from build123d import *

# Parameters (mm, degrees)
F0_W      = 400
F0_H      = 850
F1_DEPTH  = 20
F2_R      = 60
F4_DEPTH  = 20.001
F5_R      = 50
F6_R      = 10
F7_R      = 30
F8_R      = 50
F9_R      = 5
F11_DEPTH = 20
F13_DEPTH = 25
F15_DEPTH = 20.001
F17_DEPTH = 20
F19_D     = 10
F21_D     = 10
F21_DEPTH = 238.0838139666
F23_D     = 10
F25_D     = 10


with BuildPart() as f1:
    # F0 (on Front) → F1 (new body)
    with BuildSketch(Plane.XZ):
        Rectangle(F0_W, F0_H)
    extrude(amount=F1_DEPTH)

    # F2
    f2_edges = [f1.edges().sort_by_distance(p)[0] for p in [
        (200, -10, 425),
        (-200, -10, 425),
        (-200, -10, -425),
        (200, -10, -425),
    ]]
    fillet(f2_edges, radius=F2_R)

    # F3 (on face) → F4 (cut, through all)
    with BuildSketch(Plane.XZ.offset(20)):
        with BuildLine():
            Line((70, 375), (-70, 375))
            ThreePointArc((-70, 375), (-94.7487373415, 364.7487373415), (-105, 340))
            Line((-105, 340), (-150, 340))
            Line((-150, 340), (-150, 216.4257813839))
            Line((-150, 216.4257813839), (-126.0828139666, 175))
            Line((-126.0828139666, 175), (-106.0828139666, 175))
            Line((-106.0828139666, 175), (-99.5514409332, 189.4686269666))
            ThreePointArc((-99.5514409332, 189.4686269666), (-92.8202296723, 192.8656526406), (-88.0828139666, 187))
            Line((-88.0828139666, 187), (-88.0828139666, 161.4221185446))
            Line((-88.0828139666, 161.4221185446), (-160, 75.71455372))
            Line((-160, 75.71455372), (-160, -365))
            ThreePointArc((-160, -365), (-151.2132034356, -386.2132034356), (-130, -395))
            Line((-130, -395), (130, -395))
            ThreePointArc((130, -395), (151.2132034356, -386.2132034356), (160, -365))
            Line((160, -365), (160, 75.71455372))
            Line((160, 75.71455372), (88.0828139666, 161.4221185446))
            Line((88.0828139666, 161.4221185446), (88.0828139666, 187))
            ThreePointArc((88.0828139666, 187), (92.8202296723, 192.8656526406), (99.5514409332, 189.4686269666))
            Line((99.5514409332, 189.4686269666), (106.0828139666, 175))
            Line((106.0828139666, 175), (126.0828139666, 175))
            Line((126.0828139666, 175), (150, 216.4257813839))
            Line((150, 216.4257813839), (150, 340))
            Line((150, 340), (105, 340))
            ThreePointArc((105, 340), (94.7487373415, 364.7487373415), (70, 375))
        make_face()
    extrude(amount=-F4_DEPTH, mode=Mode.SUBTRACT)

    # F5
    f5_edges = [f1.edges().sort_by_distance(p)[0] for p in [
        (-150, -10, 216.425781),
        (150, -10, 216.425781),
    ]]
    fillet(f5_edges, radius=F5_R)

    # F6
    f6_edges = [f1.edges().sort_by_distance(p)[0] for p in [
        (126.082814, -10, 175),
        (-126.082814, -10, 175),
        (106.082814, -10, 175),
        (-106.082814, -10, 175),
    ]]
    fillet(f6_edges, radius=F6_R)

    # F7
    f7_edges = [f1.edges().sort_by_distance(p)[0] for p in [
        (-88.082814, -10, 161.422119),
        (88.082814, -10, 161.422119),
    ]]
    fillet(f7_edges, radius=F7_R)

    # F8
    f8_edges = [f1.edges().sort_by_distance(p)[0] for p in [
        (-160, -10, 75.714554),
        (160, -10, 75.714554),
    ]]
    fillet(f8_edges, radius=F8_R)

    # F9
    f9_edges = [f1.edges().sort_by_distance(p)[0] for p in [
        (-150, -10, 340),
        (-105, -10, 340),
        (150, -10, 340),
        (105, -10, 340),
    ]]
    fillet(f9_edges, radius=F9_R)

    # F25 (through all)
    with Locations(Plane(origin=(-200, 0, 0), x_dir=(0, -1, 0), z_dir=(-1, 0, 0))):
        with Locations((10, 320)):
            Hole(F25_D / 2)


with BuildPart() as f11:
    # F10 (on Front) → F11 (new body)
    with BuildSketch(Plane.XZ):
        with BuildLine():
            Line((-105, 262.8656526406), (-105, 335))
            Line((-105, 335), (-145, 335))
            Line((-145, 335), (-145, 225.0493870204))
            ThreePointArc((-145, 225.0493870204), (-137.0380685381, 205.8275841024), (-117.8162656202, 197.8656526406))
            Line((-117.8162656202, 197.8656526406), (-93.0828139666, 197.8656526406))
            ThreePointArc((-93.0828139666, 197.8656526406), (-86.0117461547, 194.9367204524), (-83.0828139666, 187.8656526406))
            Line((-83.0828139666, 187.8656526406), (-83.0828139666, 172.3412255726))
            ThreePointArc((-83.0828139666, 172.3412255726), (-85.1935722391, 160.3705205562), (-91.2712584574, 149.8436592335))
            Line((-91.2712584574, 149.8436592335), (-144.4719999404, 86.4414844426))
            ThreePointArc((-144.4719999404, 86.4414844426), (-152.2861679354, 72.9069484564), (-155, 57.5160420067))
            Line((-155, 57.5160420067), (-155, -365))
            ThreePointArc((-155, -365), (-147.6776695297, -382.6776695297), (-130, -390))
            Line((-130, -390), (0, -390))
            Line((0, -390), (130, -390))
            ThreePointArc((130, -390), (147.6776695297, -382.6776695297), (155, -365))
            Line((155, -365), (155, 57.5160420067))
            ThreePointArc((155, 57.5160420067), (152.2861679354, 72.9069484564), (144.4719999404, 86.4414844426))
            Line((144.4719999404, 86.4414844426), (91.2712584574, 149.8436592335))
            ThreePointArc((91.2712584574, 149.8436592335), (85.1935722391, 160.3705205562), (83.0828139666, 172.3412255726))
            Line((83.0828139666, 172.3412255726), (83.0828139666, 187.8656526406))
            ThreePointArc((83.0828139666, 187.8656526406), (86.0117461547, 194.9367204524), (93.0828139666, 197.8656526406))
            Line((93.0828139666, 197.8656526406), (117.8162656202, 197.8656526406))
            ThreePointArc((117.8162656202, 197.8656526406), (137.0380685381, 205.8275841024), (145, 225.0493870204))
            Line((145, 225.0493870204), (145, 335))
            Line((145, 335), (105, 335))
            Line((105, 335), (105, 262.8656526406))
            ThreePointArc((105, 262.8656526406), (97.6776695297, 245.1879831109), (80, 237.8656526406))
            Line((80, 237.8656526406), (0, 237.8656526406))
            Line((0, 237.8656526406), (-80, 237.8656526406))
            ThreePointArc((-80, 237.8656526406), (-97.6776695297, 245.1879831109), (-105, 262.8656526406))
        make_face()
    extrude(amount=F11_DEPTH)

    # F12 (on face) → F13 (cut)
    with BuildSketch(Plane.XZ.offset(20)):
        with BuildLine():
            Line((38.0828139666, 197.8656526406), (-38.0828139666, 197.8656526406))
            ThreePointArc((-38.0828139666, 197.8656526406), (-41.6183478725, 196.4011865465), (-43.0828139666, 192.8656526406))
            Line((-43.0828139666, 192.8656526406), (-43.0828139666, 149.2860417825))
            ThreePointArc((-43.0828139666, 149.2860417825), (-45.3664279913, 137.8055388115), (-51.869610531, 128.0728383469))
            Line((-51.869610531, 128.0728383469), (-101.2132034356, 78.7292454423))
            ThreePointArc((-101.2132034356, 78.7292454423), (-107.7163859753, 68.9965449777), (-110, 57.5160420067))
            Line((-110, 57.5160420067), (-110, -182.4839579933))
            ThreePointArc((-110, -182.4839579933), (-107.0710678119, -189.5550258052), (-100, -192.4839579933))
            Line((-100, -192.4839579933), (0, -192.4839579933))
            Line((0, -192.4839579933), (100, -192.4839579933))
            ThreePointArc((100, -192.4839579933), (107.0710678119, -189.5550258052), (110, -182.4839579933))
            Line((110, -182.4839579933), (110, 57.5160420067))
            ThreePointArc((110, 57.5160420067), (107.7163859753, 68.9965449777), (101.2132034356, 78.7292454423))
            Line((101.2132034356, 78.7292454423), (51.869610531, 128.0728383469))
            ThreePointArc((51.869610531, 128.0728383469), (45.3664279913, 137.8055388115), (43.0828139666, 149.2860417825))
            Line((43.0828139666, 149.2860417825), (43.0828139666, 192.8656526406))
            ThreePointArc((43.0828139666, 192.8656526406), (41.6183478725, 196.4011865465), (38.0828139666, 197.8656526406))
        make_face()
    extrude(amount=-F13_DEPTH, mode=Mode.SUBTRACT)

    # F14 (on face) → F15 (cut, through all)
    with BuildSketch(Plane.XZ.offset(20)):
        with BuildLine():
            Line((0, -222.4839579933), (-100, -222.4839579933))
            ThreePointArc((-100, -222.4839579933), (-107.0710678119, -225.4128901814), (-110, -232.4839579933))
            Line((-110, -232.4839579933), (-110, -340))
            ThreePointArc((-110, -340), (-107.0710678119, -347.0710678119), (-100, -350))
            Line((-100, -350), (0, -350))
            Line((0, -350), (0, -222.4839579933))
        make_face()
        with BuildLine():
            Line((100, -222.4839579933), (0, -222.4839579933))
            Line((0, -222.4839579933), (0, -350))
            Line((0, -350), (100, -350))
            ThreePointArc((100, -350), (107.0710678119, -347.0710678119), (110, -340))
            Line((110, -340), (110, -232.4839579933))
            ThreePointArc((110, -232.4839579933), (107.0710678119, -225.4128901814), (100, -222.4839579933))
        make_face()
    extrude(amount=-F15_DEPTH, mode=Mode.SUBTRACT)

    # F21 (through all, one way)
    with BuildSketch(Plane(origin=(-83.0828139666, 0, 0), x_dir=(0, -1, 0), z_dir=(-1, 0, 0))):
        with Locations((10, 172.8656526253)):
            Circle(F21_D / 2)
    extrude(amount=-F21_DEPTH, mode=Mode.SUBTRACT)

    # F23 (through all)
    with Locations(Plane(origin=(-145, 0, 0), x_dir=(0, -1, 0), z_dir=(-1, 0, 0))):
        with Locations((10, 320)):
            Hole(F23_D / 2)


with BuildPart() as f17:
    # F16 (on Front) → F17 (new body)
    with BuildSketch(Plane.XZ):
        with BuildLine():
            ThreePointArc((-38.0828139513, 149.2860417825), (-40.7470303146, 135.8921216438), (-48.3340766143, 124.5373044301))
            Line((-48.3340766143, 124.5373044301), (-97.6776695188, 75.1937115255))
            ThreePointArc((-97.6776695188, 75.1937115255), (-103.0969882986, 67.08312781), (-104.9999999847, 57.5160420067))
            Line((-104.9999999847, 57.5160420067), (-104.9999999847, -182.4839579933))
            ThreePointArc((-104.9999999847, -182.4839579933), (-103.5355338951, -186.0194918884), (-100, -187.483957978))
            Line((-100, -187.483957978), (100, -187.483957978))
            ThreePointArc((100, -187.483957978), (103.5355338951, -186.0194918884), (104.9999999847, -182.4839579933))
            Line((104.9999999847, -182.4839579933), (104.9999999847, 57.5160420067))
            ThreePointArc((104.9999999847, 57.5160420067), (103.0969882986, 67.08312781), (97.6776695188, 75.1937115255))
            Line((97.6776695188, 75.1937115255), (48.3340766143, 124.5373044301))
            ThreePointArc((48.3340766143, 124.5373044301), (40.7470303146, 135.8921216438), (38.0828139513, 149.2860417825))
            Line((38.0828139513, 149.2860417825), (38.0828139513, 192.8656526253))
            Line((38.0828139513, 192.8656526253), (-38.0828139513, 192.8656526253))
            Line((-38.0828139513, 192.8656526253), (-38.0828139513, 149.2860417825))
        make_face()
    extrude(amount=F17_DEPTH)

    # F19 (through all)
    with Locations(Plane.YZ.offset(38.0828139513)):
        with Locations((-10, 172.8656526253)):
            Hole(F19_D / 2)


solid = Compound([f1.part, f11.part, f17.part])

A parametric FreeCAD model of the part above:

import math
import FreeCAD as App
import Part
import Sketcher
Q = App.Units.Quantity


def edges_at(feature, points):
    """Names of the edges that pass closest to the given points."""
    edges = feature.Shape.Edges
    near = lambda p: min(range(len(edges)), key=lambda i: edges[i].distToShape(Part.Vertex(*p))[0])
    return sorted({f"Edge{near(p) + 1}" for p in points})


def add_polygon(sketch, points):
    """Adds a closed chain of lines whose ends are joined by coincident constraints."""
    first, n = sketch.GeometryCount, len(points)
    for a, b in zip(points, points[1:] + points[:1]):
        sketch.addGeometry(Part.LineSegment(App.Vector(*a, 0), App.Vector(*b, 0)), False)
    for i in range(n):
        sketch.addConstraint(Sketcher.Constraint("Coincident", first + i, 2, first + (i + 1) % n, 1))

doc = App.newDocument("Part")
body = doc.addObject("PartDesign::Body", "Body")

sketch1 = doc.addObject("Sketcher::SketchObject", "Sketch")
body.addObject(sketch1)
sketch1.AttachmentSupport = (doc.XZ_Plane, [""])
sketch1.MapMode = "FlatFace"
add_polygon(sketch1, [(-200, 425), (-200, -425), (200, -425), (200, 425)])
sketch1.addConstraint(Sketcher.Constraint("Vertical", 0))
sketch1.addConstraint(Sketcher.Constraint("Horizontal", 1))
sketch1.addConstraint(Sketcher.Constraint("Vertical", 2))
sketch1.addConstraint(Sketcher.Constraint("Horizontal", 3))
sketch1.addConstraint(Sketcher.Constraint("Symmetric", 0, 2, 2, 2, -1, 1))
sketch1.addConstraint(Sketcher.Constraint("DistanceX", 1, 1, 1, 2, Q("400 mm")))
sketch1.addConstraint(Sketcher.Constraint("DistanceY", 0, 2, 0, 1, Q("850 mm")))
pad1 = doc.addObject("PartDesign::Pad", "Pad")
body.addObject(pad1)
pad1.Profile = sketch1
pad1.Length = 20
doc.recompute()

fillet = doc.addObject("PartDesign::Fillet", "Fillet")
body.addObject(fillet)
fillet.Base = (pad1, edges_at(pad1, [
    (200, -10, 425),
    (-200, -10, 425),
    (-200, -10, -425),
    (200, -10, -425),
]))
fillet.Radius = 60

sketch2 = doc.addObject("Sketcher::SketchObject", "Sketch001")
body.addObject(sketch2)
sketch2.AttachmentSupport = (doc.XZ_Plane, [""])
sketch2.MapMode = "FlatFace"
sketch2.AttachmentOffset = App.Placement(App.Vector(0, 0, 20), App.Rotation())
sketch2.addGeometry(Part.LineSegment(App.Vector(70, 375, 0), App.Vector(-70, 375, 0)), False)
sketch2.addGeometry(Part.ArcOfCircle(Part.Circle(App.Vector(-70, 340, 0), App.Vector(0, 0, 1), 35), math.radians(90), math.radians(180)), False)
sketch2.addGeometry(Part.LineSegment(App.Vector(-105, 340, 0), App.Vector(-150, 340, 0)), False)
sketch2.addGeometry(Part.LineSegment(App.Vector(-150, 340, 0), App.Vector(-150, 216, 0)), False)
sketch2.addGeometry(Part.LineSegment(App.Vector(-150, 216, 0), App.Vector(-126, 175, 0)), False)
sketch2.addGeometry(Part.LineSegment(App.Vector(-126, 175, 0), App.Vector(-106, 175, 0)), False)
sketch2.addGeometry(Part.LineSegment(App.Vector(-106, 175, 0), App.Vector(-100, 189, 0)), False)
sketch2.addGeometry(Part.ArcOfCircle(Part.Circle(App.Vector(-94, 187, 0), App.Vector(0, 0, 1), 6), math.radians(0), math.radians(156)), False)
sketch2.addGeometry(Part.LineSegment(App.Vector(-88, 187, 0), App.Vector(-88, 161, 0)), False)
sketch2.addGeometry(Part.LineSegment(App.Vector(-88, 161, 0), App.Vector(-160, 76, 0)), False)
sketch2.addGeometry(Part.LineSegment(App.Vector(-160, 76, 0), App.Vector(-160, -365, 0)), False)
sketch2.addGeometry(Part.ArcOfCircle(Part.Circle(App.Vector(-130, -365, 0), App.Vector(0, 0, 1), 30), math.radians(180), math.radians(270)), False)
sketch2.addGeometry(Part.LineSegment(App.Vector(-130, -395, 0), App.Vector(130, -395, 0)), False)
sketch2.addGeometry(Part.ArcOfCircle(Part.Circle(App.Vector(130, -365, 0), App.Vector(0, 0, 1), 30), math.radians(-90), math.radians(0)), False)
sketch2.addGeometry(Part.LineSegment(App.Vector(160, -365, 0), App.Vector(160, 76, 0)), False)
sketch2.addGeometry(Part.LineSegment(App.Vector(160, 76, 0), App.Vector(88, 161, 0)), False)
sketch2.addGeometry(Part.LineSegment(App.Vector(88, 161, 0), App.Vector(88, 187, 0)), False)
sketch2.addGeometry(Part.ArcOfCircle(Part.Circle(App.Vector(94, 187, 0), App.Vector(0, 0, 1), 6), math.radians(24), math.radians(180)), False)
sketch2.addGeometry(Part.LineSegment(App.Vector(100, 189, 0), App.Vector(106, 175, 0)), False)
sketch2.addGeometry(Part.LineSegment(App.Vector(106, 175, 0), App.Vector(126, 175, 0)), False)
sketch2.addGeometry(Part.LineSegment(App.Vector(126, 175, 0), App.Vector(150, 216, 0)), False)
sketch2.addGeometry(Part.LineSegment(App.Vector(150, 216, 0), App.Vector(150, 340, 0)), False)
sketch2.addGeometry(Part.LineSegment(App.Vector(150, 340, 0), App.Vector(105, 340, 0)), False)
sketch2.addGeometry(Part.ArcOfCircle(Part.Circle(App.Vector(70, 340, 0), App.Vector(0, 0, 1), 35), math.radians(0), math.radians(90)), False)
sketch2.addConstraint(Sketcher.Constraint("Tangent", 0, 2, 1, 1))
sketch2.addConstraint(Sketcher.Constraint("Coincident", 1, 2, 2, 1))
sketch2.addConstraint(Sketcher.Constraint("Coincident", 2, 2, 3, 1))
sketch2.addConstraint(Sketcher.Constraint("Coincident", 3, 2, 4, 1))
sketch2.addConstraint(Sketcher.Constraint("Coincident", 4, 2, 5, 1))
sketch2.addConstraint(Sketcher.Constraint("Coincident", 5, 2, 6, 1))
sketch2.addConstraint(Sketcher.Constraint("Tangent", 6, 2, 7, 2))
sketch2.addConstraint(Sketcher.Constraint("Tangent", 7, 1, 8, 1))
sketch2.addConstraint(Sketcher.Constraint("Coincident", 8, 2, 9, 1))
sketch2.addConstraint(Sketcher.Constraint("Coincident", 9, 2, 10, 1))
sketch2.addConstraint(Sketcher.Constraint("Tangent", 10, 2, 11, 1))
sketch2.addConstraint(Sketcher.Constraint("Tangent", 11, 2, 12, 1))
sketch2.addConstraint(Sketcher.Constraint("Tangent", 12, 2, 13, 1))
sketch2.addConstraint(Sketcher.Constraint("Tangent", 13, 2, 14, 1))
sketch2.addConstraint(Sketcher.Constraint("Coincident", 14, 2, 15, 1))
sketch2.addConstraint(Sketcher.Constraint("Coincident", 15, 2, 16, 1))
sketch2.addConstraint(Sketcher.Constraint("Tangent", 16, 2, 17, 2))
sketch2.addConstraint(Sketcher.Constraint("Tangent", 17, 1, 18, 1))
sketch2.addConstraint(Sketcher.Constraint("Coincident", 18, 2, 19, 1))
sketch2.addConstraint(Sketcher.Constraint("Coincident", 19, 2, 20, 1))
sketch2.addConstraint(Sketcher.Constraint("Coincident", 20, 2, 21, 1))
sketch2.addConstraint(Sketcher.Constraint("Coincident", 21, 2, 22, 1))
sketch2.addConstraint(Sketcher.Constraint("Coincident", 22, 2, 23, 1))
sketch2.addConstraint(Sketcher.Constraint("Tangent", 23, 2, 0, 1))
sketch2.addConstraint(Sketcher.Constraint("Horizontal", 0))
sketch2.addConstraint(Sketcher.Constraint("Horizontal", 2))
sketch2.addConstraint(Sketcher.Constraint("Vertical", 3))
sketch2.addConstraint(Sketcher.Constraint("Horizontal", 5))
sketch2.addConstraint(Sketcher.Constraint("Vertical", 8))
sketch2.addConstraint(Sketcher.Constraint("Vertical", 10))
sketch2.addConstraint(Sketcher.Constraint("Horizontal", 12))
sketch2.addConstraint(Sketcher.Constraint("Vertical", 14))
sketch2.addConstraint(Sketcher.Constraint("Vertical", 16))
sketch2.addConstraint(Sketcher.Constraint("Horizontal", 19))
sketch2.addConstraint(Sketcher.Constraint("Vertical", 21))
sketch2.addConstraint(Sketcher.Constraint("Horizontal", 22))
sketch2.addConstraint(Sketcher.Constraint("Equal", 11, 13))
sketch2.addConstraint(Sketcher.Constraint("Equal", 7, 17))
sketch2.addConstraint(Sketcher.Constraint("Equal", 1, 23))
sketch2.addConstraint(Sketcher.Constraint("Symmetric", 7, 3, 17, 3, -2))
sketch2.addConstraint(Sketcher.Constraint("Symmetric", 9, 2, 14, 2, -2))
sketch2.addConstraint(Sketcher.Constraint("Symmetric", 5, 2, 18, 2, -2))
sketch2.addConstraint(Sketcher.Constraint("Symmetric", 3, 2, 20, 2, -2))
sketch2.addConstraint(Sketcher.Constraint("Symmetric", 1, 2, 22, 2, -2))
sketch2.addConstraint(Sketcher.Constraint("Horizontal", 23, 3, 1, 2))
sketch2.addConstraint(Sketcher.Constraint("Horizontal", 8, 2, 15, 2))
sketch2.addConstraint(Sketcher.Constraint("Equal", 5, 19))
sketch2.addConstraint(Sketcher.Constraint("Radius", 1, Q("35 mm")))
sketch2.addConstraint(Sketcher.Constraint("Radius", 7, Q("6 mm")))
sketch2.addConstraint(Sketcher.Constraint("Radius", 11, Q("30 mm")))
sketch2.addConstraint(Sketcher.Constraint("DistanceX", 0, 2, 0, 1, Q("140 mm")))
sketch2.addConstraint(Sketcher.Constraint("DistanceX", 2, 2, 2, 1, Q("45 mm")))
sketch2.addConstraint(Sketcher.Constraint("DistanceX", 5, 1, 5, 2, Q("20 mm")))
sketch2.addConstraint(Sketcher.Constraint("DistanceX", 12, 1, 12, 2, Q("260 mm")))
sketch2.addConstraint(Sketcher.Constraint("Angle", 4, Q("-60 deg")))
sketch2.addConstraint(Sketcher.Constraint("Angle", 9, Q("-130 deg")))
sketch2.addConstraint(Sketcher.Constraint("DistanceY", -1, 1, 1, 3, Q("340 mm")))
sketch2.addConstraint(Sketcher.Constraint("DistanceY", -1, 1, 7, 3, Q("187 mm")))
sketch2.addConstraint(Sketcher.Constraint("DistanceY", 11, 3, -1, 1, Q("365 mm")))
sketch2.addConstraint(Sketcher.Constraint("DistanceY", -1, 1, 4, 2, Q("175 mm")))
sketch2.addConstraint(Sketcher.Constraint("DistanceX", 4, 2, 7, 3, Q("32 mm")))
sketch2.addConstraint(Sketcher.Constraint("DistanceY", 3, 2, 3, 1, Q("123.574219 mm")))
sketch2.addConstraint(Sketcher.Constraint("DistanceY", 8, 2, 8, 1, Q("25.577881 mm")))
pocket1 = doc.addObject("PartDesign::Pocket", "Pocket")
body.addObject(pocket1)
pocket1.Profile = sketch2
pocket1.Type = "ThroughAll"
doc.recompute()

fillet2 = doc.addObject("PartDesign::Fillet", "Fillet001")
body.addObject(fillet2)
fillet2.Base = (pocket1, edges_at(pocket1, [(-150, -10, 216.426), (150, -10, 216.426)]))
fillet2.Radius = 50
doc.recompute()

fillet3 = doc.addObject("PartDesign::Fillet", "Fillet002")
body.addObject(fillet3)
fillet3.Base = (fillet2, edges_at(fillet2, [
    (126.083, -10, 175),
    (-126.083, -10, 175),
    (106.083, -10, 175),
    (-106.083, -10, 175),
]))
fillet3.Radius = 10
doc.recompute()

fillet4 = doc.addObject("PartDesign::Fillet", "Fillet003")
body.addObject(fillet4)
fillet4.Base = (fillet3, edges_at(fillet3, [(-88.083, -10, 161.422), (88.083, -10, 161.422)]))
fillet4.Radius = 30
doc.recompute()

fillet5 = doc.addObject("PartDesign::Fillet", "Fillet004")
body.addObject(fillet5)
fillet5.Base = (fillet4, edges_at(fillet4, [(-160, -10, 75.715), (160, -10, 75.715)]))
fillet5.Radius = 50
doc.recompute()

fillet6 = doc.addObject("PartDesign::Fillet", "Fillet005")
body.addObject(fillet6)
fillet6.Base = (fillet5, edges_at(fillet5, [
    (-150, -10, 340),
    (-105, -10, 340),
    (150, -10, 340),
    (105, -10, 340),
]))
fillet6.Radius = 5

sketch3 = doc.addObject("Sketcher::SketchObject", "Sketch002")
body.addObject(sketch3)
sketch3.AttachmentSupport = (doc.YZ_Plane, [""])
sketch3.MapMode = "FlatFace"
sketch3.AttachmentOffset = App.Placement(App.Vector(0, 0, -200), App.Rotation())
sketch3.addGeometry(Part.Circle(App.Vector(-10, 320, 0), App.Vector(0, 0, 1), 5), False)
sketch3.addConstraint(Sketcher.Constraint("Diameter", 0, Q("10 mm")))
sketch3.addConstraint(Sketcher.Constraint("DistanceX", 0, 3, -1, 1, Q("10 mm")))
sketch3.addConstraint(Sketcher.Constraint("DistanceY", -1, 1, 0, 3, Q("320 mm")))
doc.recompute()
hole = doc.addObject("PartDesign::Hole", "Hole")
body.addObject(hole)
hole.Profile = sketch3
hole.ThreadType = "None"
hole.Diameter = 10
hole.DepthType = "ThroughAll"
hole.Reversed = True
body2 = doc.addObject("PartDesign::Body", "Body001")

sketch4 = doc.addObject("Sketcher::SketchObject", "Sketch003")
body2.addObject(sketch4)
sketch4.AttachmentSupport = (doc.getObject("XZ_Plane001"), [""])
sketch4.MapMode = "FlatFace"
sketch4.addGeometry(Part.LineSegment(App.Vector(-105, 263, 0), App.Vector(-105, 335, 0)), False)
sketch4.addGeometry(Part.LineSegment(App.Vector(-105, 335, 0), App.Vector(-145, 335, 0)), False)
sketch4.addGeometry(Part.LineSegment(App.Vector(-145, 335, 0), App.Vector(-145, 225, 0)), False)
sketch4.addGeometry(Part.ArcOfCircle(Part.Circle(App.Vector(-118, 225, 0), App.Vector(0, 0, 1), 27), math.radians(180), math.radians(270)), False)
sketch4.addGeometry(Part.LineSegment(App.Vector(-118, 198, 0), App.Vector(-93, 198, 0)), False)
sketch4.addGeometry(Part.ArcOfCircle(Part.Circle(App.Vector(-93, 188, 0), App.Vector(0, 0, 1), 10), math.radians(0), math.radians(90)), False)
sketch4.addGeometry(Part.LineSegment(App.Vector(-83, 188, 0), App.Vector(-83, 172, 0)), False)
sketch4.addGeometry(Part.ArcOfCircle(Part.Circle(App.Vector(-118, 172, 0), App.Vector(0, 0, 1), 35), math.radians(-40), math.radians(0)), False)
sketch4.addGeometry(Part.LineSegment(App.Vector(-91, 150, 0), App.Vector(-144, 86, 0)), False)
sketch4.addGeometry(Part.ArcOfCircle(Part.Circle(App.Vector(-110, 58, 0), App.Vector(0, 0, 1), 45), math.radians(140), math.radians(180)), False)
sketch4.addGeometry(Part.LineSegment(App.Vector(-155, 58, 0), App.Vector(-155, -365, 0)), False)
sketch4.addGeometry(Part.ArcOfCircle(Part.Circle(App.Vector(-130, -365, 0), App.Vector(0, 0, 1), 25), math.radians(180), math.radians(270)), False)
sketch4.addGeometry(Part.LineSegment(App.Vector(-130, -390, 0), App.Vector(130, -390, 0)), False)
sketch4.addGeometry(Part.ArcOfCircle(Part.Circle(App.Vector(130, -365, 0), App.Vector(0, 0, 1), 25), math.radians(-90), math.radians(0)), False)
sketch4.addGeometry(Part.LineSegment(App.Vector(155, -365, 0), App.Vector(155, 58, 0)), False)
sketch4.addGeometry(Part.ArcOfCircle(Part.Circle(App.Vector(110, 58, 0), App.Vector(0, 0, 1), 45), math.radians(0), math.radians(40)), False)
sketch4.addGeometry(Part.LineSegment(App.Vector(144, 86, 0), App.Vector(91, 150, 0)), False)
sketch4.addGeometry(Part.ArcOfCircle(Part.Circle(App.Vector(118, 172, 0), App.Vector(0, 0, 1), 35), math.radians(180), math.radians(220)), False)
sketch4.addGeometry(Part.LineSegment(App.Vector(83, 172, 0), App.Vector(83, 188, 0)), False)
sketch4.addGeometry(Part.ArcOfCircle(Part.Circle(App.Vector(93, 188, 0), App.Vector(0, 0, 1), 10), math.radians(90), math.radians(180)), False)
sketch4.addGeometry(Part.LineSegment(App.Vector(93, 198, 0), App.Vector(118, 198, 0)), False)
sketch4.addGeometry(Part.ArcOfCircle(Part.Circle(App.Vector(118, 225, 0), App.Vector(0, 0, 1), 27), math.radians(-90), math.radians(0)), False)
sketch4.addGeometry(Part.LineSegment(App.Vector(145, 225, 0), App.Vector(145, 335, 0)), False)
sketch4.addGeometry(Part.LineSegment(App.Vector(145, 335, 0), App.Vector(105, 335, 0)), False)
sketch4.addGeometry(Part.LineSegment(App.Vector(105, 335, 0), App.Vector(105, 263, 0)), False)
sketch4.addGeometry(Part.ArcOfCircle(Part.Circle(App.Vector(80, 263, 0), App.Vector(0, 0, 1), 25), math.radians(-90), math.radians(0)), False)
sketch4.addGeometry(Part.LineSegment(App.Vector(80, 238, 0), App.Vector(-80, 238, 0)), False)
sketch4.addGeometry(Part.ArcOfCircle(Part.Circle(App.Vector(-80, 263, 0), App.Vector(0, 0, 1), 25), math.radians(180), math.radians(270)), False)
sketch4.addConstraint(Sketcher.Constraint("Coincident", 0, 2, 1, 1))
sketch4.addConstraint(Sketcher.Constraint("Coincident", 1, 2, 2, 1))
sketch4.addConstraint(Sketcher.Constraint("Tangent", 2, 2, 3, 1))
sketch4.addConstraint(Sketcher.Constraint("Tangent", 3, 2, 4, 1))
sketch4.addConstraint(Sketcher.Constraint("Tangent", 4, 2, 5, 2))
sketch4.addConstraint(Sketcher.Constraint("Tangent", 5, 1, 6, 1))
sketch4.addConstraint(Sketcher.Constraint("Tangent", 6, 2, 7, 2))
sketch4.addConstraint(Sketcher.Constraint("Tangent", 7, 1, 8, 1))
sketch4.addConstraint(Sketcher.Constraint("Tangent", 8, 2, 9, 1))
sketch4.addConstraint(Sketcher.Constraint("Tangent", 9, 2, 10, 1))
sketch4.addConstraint(Sketcher.Constraint("Tangent", 10, 2, 11, 1))
sketch4.addConstraint(Sketcher.Constraint("Tangent", 11, 2, 12, 1))
sketch4.addConstraint(Sketcher.Constraint("Tangent", 12, 2, 13, 1))
sketch4.addConstraint(Sketcher.Constraint("Tangent", 13, 2, 14, 1))
sketch4.addConstraint(Sketcher.Constraint("Tangent", 14, 2, 15, 1))
sketch4.addConstraint(Sketcher.Constraint("Tangent", 15, 2, 16, 1))
sketch4.addConstraint(Sketcher.Constraint("Tangent", 16, 2, 17, 2))
sketch4.addConstraint(Sketcher.Constraint("Tangent", 17, 1, 18, 1))
sketch4.addConstraint(Sketcher.Constraint("Tangent", 18, 2, 19, 2))
sketch4.addConstraint(Sketcher.Constraint("Tangent", 19, 1, 20, 1))
sketch4.addConstraint(Sketcher.Constraint("Tangent", 20, 2, 21, 1))
sketch4.addConstraint(Sketcher.Constraint("Tangent", 21, 2, 22, 1))
sketch4.addConstraint(Sketcher.Constraint("Coincident", 22, 2, 23, 1))
sketch4.addConstraint(Sketcher.Constraint("Coincident", 23, 2, 24, 1))
sketch4.addConstraint(Sketcher.Constraint("Tangent", 24, 2, 25, 2))
sketch4.addConstraint(Sketcher.Constraint("Tangent", 25, 1, 26, 1))
sketch4.addConstraint(Sketcher.Constraint("Tangent", 26, 2, 27, 2))
sketch4.addConstraint(Sketcher.Constraint("Tangent", 27, 1, 0, 1))
sketch4.addConstraint(Sketcher.Constraint("Vertical", 0))
sketch4.addConstraint(Sketcher.Constraint("Horizontal", 1))
sketch4.addConstraint(Sketcher.Constraint("Vertical", 2))
sketch4.addConstraint(Sketcher.Constraint("Horizontal", 4))
sketch4.addConstraint(Sketcher.Constraint("Vertical", 6))
sketch4.addConstraint(Sketcher.Constraint("Vertical", 10))
sketch4.addConstraint(Sketcher.Constraint("Horizontal", 12))
sketch4.addConstraint(Sketcher.Constraint("Vertical", 14))
sketch4.addConstraint(Sketcher.Constraint("Vertical", 18))
sketch4.addConstraint(Sketcher.Constraint("Horizontal", 20))
sketch4.addConstraint(Sketcher.Constraint("Vertical", 22))
sketch4.addConstraint(Sketcher.Constraint("Horizontal", 23))
sketch4.addConstraint(Sketcher.Constraint("Vertical", 24))
sketch4.addConstraint(Sketcher.Constraint("Horizontal", 26))
sketch4.addConstraint(Sketcher.Constraint("Equal", 11, 13))
sketch4.addConstraint(Sketcher.Constraint("Equal", 9, 15))
sketch4.addConstraint(Sketcher.Constraint("Equal", 7, 17))
sketch4.addConstraint(Sketcher.Constraint("Equal", 5, 19))
sketch4.addConstraint(Sketcher.Constraint("Equal", 3, 21))
sketch4.addConstraint(Sketcher.Constraint("Equal", 13, 25))
sketch4.addConstraint(Sketcher.Constraint("Equal", 25, 27))
sketch4.addConstraint(Sketcher.Constraint("Symmetric", 9, 3, 15, 3, -2))
sketch4.addConstraint(Sketcher.Constraint("Symmetric", 7, 3, 17, 3, -2))
sketch4.addConstraint(Sketcher.Constraint("Symmetric", 3, 3, 21, 3, -2))
sketch4.addConstraint(Sketcher.Constraint("Symmetric", 0, 2, 23, 2, -2))
sketch4.addConstraint(Sketcher.Constraint("Radius", 5, Q("10 mm")))
sketch4.addConstraint(Sketcher.Constraint("Radius", 7, Q("35 mm")))
sketch4.addConstraint(Sketcher.Constraint("Radius", 9, Q("45 mm")))
sketch4.addConstraint(Sketcher.Constraint("Radius", 11, Q("25 mm")))
sketch4.addConstraint(Sketcher.Constraint("DistanceX", 1, 2, 1, 1, Q("40 mm")))
sketch4.addConstraint(Sketcher.Constraint("DistanceX", 12, 1, 12, 2, Q("260 mm")))
sketch4.addConstraint(Sketcher.Constraint("DistanceX", 26, 2, 26, 1, Q("160 mm")))
sketch4.addConstraint(Sketcher.Constraint("Angle", 8, Q("-130 deg")))
sketch4.addConstraint(Sketcher.Constraint("DistanceY", 11, 3, -1, 1, Q("365 mm")))
sketch4.addConstraint(Sketcher.Constraint("DistanceY", -1, 1, 0, 2, Q("335 mm")))
sketch4.addConstraint(Sketcher.Constraint("DistanceY", 19, 3, 25, 3, Q("75 mm")))
sketch4.addConstraint(Sketcher.Constraint("Radius", 3, Q("27.183734 mm")))
sketch4.addConstraint(Sketcher.Constraint("DistanceX", 4, 1, 4, 2, Q("24.733452 mm")))
sketch4.addConstraint(Sketcher.Constraint("DistanceY", 0, 1, 0, 2, Q("72.134347 mm")))
sketch4.addConstraint(Sketcher.Constraint("DistanceY", 6, 2, 6, 1, Q("15.524427 mm")))
pad2 = doc.addObject("PartDesign::Pad", "Pad001")
body2.addObject(pad2)
pad2.Profile = sketch4
pad2.Length = 20

sketch5 = doc.addObject("Sketcher::SketchObject", "Sketch004")
body2.addObject(sketch5)
sketch5.AttachmentSupport = (doc.getObject("XZ_Plane001"), [""])
sketch5.MapMode = "FlatFace"
sketch5.AttachmentOffset = App.Placement(App.Vector(0, 0, 20), App.Rotation())
sketch5.addGeometry(Part.LineSegment(App.Vector(38, 198, 0), App.Vector(-38, 198, 0)), False)
sketch5.addGeometry(Part.ArcOfCircle(Part.Circle(App.Vector(-38, 193, 0), App.Vector(0, 0, 1), 5), math.radians(90), math.radians(180)), False)
sketch5.addGeometry(Part.LineSegment(App.Vector(-43, 193, 0), App.Vector(-43, 149, 0)), False)
sketch5.addGeometry(Part.ArcOfCircle(Part.Circle(App.Vector(-73, 149, 0), App.Vector(0, 0, 1), 30), math.radians(-45), math.radians(0)), False)
sketch5.addGeometry(Part.LineSegment(App.Vector(-52, 128, 0), App.Vector(-101, 79, 0)), False)
sketch5.addGeometry(Part.ArcOfCircle(Part.Circle(App.Vector(-80, 58, 0), App.Vector(0, 0, 1), 30), math.radians(135), math.radians(180)), False)
sketch5.addGeometry(Part.LineSegment(App.Vector(-110, 58, 0), App.Vector(-110, -182, 0)), False)
sketch5.addGeometry(Part.ArcOfCircle(Part.Circle(App.Vector(-100, -182, 0), App.Vector(0, 0, 1), 10), math.radians(180), math.radians(270)), False)
sketch5.addGeometry(Part.LineSegment(App.Vector(-100, -192, 0), App.Vector(100, -192, 0)), False)
sketch5.addGeometry(Part.ArcOfCircle(Part.Circle(App.Vector(100, -182, 0), App.Vector(0, 0, 1), 10), math.radians(-90), math.radians(0)), False)
sketch5.addGeometry(Part.LineSegment(App.Vector(110, -182, 0), App.Vector(110, 58, 0)), False)
sketch5.addGeometry(Part.ArcOfCircle(Part.Circle(App.Vector(80, 58, 0), App.Vector(0, 0, 1), 30), math.radians(0), math.radians(45)), False)
sketch5.addGeometry(Part.LineSegment(App.Vector(101, 79, 0), App.Vector(52, 128, 0)), False)
sketch5.addGeometry(Part.ArcOfCircle(Part.Circle(App.Vector(73, 149, 0), App.Vector(0, 0, 1), 30), math.radians(180), math.radians(225)), False)
sketch5.addGeometry(Part.LineSegment(App.Vector(43, 149, 0), App.Vector(43, 193, 0)), False)
sketch5.addGeometry(Part.ArcOfCircle(Part.Circle(App.Vector(38, 193, 0), App.Vector(0, 0, 1), 5), math.radians(0), math.radians(90)), False)
sketch5.addConstraint(Sketcher.Constraint("Tangent", 0, 2, 1, 1))
sketch5.addConstraint(Sketcher.Constraint("Tangent", 1, 2, 2, 1))
sketch5.addConstraint(Sketcher.Constraint("Tangent", 2, 2, 3, 2))
sketch5.addConstraint(Sketcher.Constraint("Tangent", 3, 1, 4, 1))
sketch5.addConstraint(Sketcher.Constraint("Tangent", 4, 2, 5, 1))
sketch5.addConstraint(Sketcher.Constraint("Tangent", 5, 2, 6, 1))
sketch5.addConstraint(Sketcher.Constraint("Tangent", 6, 2, 7, 1))
sketch5.addConstraint(Sketcher.Constraint("Tangent", 7, 2, 8, 1))
sketch5.addConstraint(Sketcher.Constraint("Tangent", 8, 2, 9, 1))
sketch5.addConstraint(Sketcher.Constraint("Tangent", 9, 2, 10, 1))
sketch5.addConstraint(Sketcher.Constraint("Tangent", 10, 2, 11, 1))
sketch5.addConstraint(Sketcher.Constraint("Tangent", 11, 2, 12, 1))
sketch5.addConstraint(Sketcher.Constraint("Tangent", 12, 2, 13, 2))
sketch5.addConstraint(Sketcher.Constraint("Tangent", 13, 1, 14, 1))
sketch5.addConstraint(Sketcher.Constraint("Tangent", 14, 2, 15, 1))
sketch5.addConstraint(Sketcher.Constraint("Tangent", 15, 2, 0, 1))
sketch5.addConstraint(Sketcher.Constraint("Horizontal", 0))
sketch5.addConstraint(Sketcher.Constraint("Vertical", 2))
sketch5.addConstraint(Sketcher.Constraint("Vertical", 6))
sketch5.addConstraint(Sketcher.Constraint("Horizontal", 8))
sketch5.addConstraint(Sketcher.Constraint("Vertical", 10))
sketch5.addConstraint(Sketcher.Constraint("Vertical", 14))
sketch5.addConstraint(Sketcher.Constraint("Equal", 3, 5))
sketch5.addConstraint(Sketcher.Constraint("Equal", 7, 9))
sketch5.addConstraint(Sketcher.Constraint("Equal", 5, 11))
sketch5.addConstraint(Sketcher.Constraint("Equal", 11, 13))
sketch5.addConstraint(Sketcher.Constraint("Equal", 1, 15))
sketch5.addConstraint(Sketcher.Constraint("Symmetric", 5, 3, 11, 3, -2))
sketch5.addConstraint(Sketcher.Constraint("Symmetric", 3, 3, 13, 3, -2))
sketch5.addConstraint(Sketcher.Constraint("Perpendicular", 4, 12))
sketch5.addConstraint(Sketcher.Constraint("Radius", 1, Q("5 mm")))
sketch5.addConstraint(Sketcher.Constraint("Radius", 3, Q("30 mm")))
sketch5.addConstraint(Sketcher.Constraint("Radius", 7, Q("10 mm")))
sketch5.addConstraint(Sketcher.Constraint("DistanceX", 8, 1, 8, 2, Q("200 mm")))
sketch5.addConstraint(Sketcher.Constraint("DistanceY", 6, 2, 6, 1, Q("240 mm")))
sketch5.addConstraint(Sketcher.Constraint("DistanceY", 5, 3, 3, 3, Q("91.77 mm")))
sketch5.addConstraint(Sketcher.Constraint("DistanceY", 2, 2, 2, 1, Q("43.579611 mm")))
sketch5.addConstraint(Sketcher.Constraint("DistanceY", -1, 1, 3, 3, Q("149.286042 mm")))
pocket2 = doc.addObject("PartDesign::Pocket", "Pocket001")
body2.addObject(pocket2)
pocket2.Profile = sketch5
pocket2.Length = 25

sketch6 = doc.addObject("Sketcher::SketchObject", "Sketch005")
body2.addObject(sketch6)
sketch6.AttachmentSupport = (doc.getObject("XZ_Plane001"), [""])
sketch6.MapMode = "FlatFace"
sketch6.AttachmentOffset = App.Placement(App.Vector(0, 0, 20), App.Rotation())
sketch6.addGeometry(Part.ArcOfCircle(Part.Circle(App.Vector(-100, -232, 0), App.Vector(0, 0, 1), 10), math.radians(90), math.radians(180)), False)
sketch6.addGeometry(Part.LineSegment(App.Vector(-110, -232, 0), App.Vector(-110, -340, 0)), False)
sketch6.addGeometry(Part.ArcOfCircle(Part.Circle(App.Vector(-100, -340, 0), App.Vector(0, 0, 1), 10), math.radians(180), math.radians(270)), False)
sketch6.addGeometry(Part.LineSegment(App.Vector(-100, -350, 0), App.Vector(100, -350, 0)), False)
sketch6.addGeometry(Part.ArcOfCircle(Part.Circle(App.Vector(100, -340, 0), App.Vector(0, 0, 1), 10), math.radians(-90), math.radians(0)), False)
sketch6.addGeometry(Part.LineSegment(App.Vector(110, -340, 0), App.Vector(110, -232, 0)), False)
sketch6.addGeometry(Part.ArcOfCircle(Part.Circle(App.Vector(100, -232, 0), App.Vector(0, 0, 1), 10), math.radians(0), math.radians(90)), False)
sketch6.addGeometry(Part.LineSegment(App.Vector(100, -222, 0), App.Vector(-100, -222, 0)), False)
sketch6.addConstraint(Sketcher.Constraint("Tangent", 0, 2, 1, 1))
sketch6.addConstraint(Sketcher.Constraint("Tangent", 1, 2, 2, 1))
sketch6.addConstraint(Sketcher.Constraint("Tangent", 2, 2, 3, 1))
sketch6.addConstraint(Sketcher.Constraint("Tangent", 3, 2, 4, 1))
sketch6.addConstraint(Sketcher.Constraint("Tangent", 4, 2, 5, 1))
sketch6.addConstraint(Sketcher.Constraint("Tangent", 5, 2, 6, 1))
sketch6.addConstraint(Sketcher.Constraint("Tangent", 6, 2, 7, 1))
sketch6.addConstraint(Sketcher.Constraint("Tangent", 7, 2, 0, 1))
sketch6.addConstraint(Sketcher.Constraint("Vertical", 1))
sketch6.addConstraint(Sketcher.Constraint("Horizontal", 3))
sketch6.addConstraint(Sketcher.Constraint("Vertical", 5))
sketch6.addConstraint(Sketcher.Constraint("Horizontal", 7))
sketch6.addConstraint(Sketcher.Constraint("Equal", 0, 2))
sketch6.addConstraint(Sketcher.Constraint("Equal", 2, 4))
sketch6.addConstraint(Sketcher.Constraint("Equal", 4, 6))
sketch6.addConstraint(Sketcher.Constraint("Radius", 0, Q("10 mm")))
sketch6.addConstraint(Sketcher.Constraint("DistanceX", 3, 1, 3, 2, Q("200 mm")))
sketch6.addConstraint(Sketcher.Constraint("DistanceX", 0, 3, -1, 1, Q("100 mm")))
sketch6.addConstraint(Sketcher.Constraint("DistanceY", 2, 3, -1, 1, Q("340 mm")))
sketch6.addConstraint(Sketcher.Constraint("DistanceY", 1, 2, 1, 1, Q("107.516042 mm")))
pocket3 = doc.addObject("PartDesign::Pocket", "Pocket002")
body2.addObject(pocket3)
pocket3.Profile = sketch6
pocket3.Type = "ThroughAll"

sketch7 = doc.addObject("Sketcher::SketchObject", "Sketch006")
body2.addObject(sketch7)
sketch7.AttachmentSupport = (doc.getObject("YZ_Plane001"), [""])
sketch7.MapMode = "FlatFace"
sketch7.AttachmentOffset = App.Placement(App.Vector(0, 0, -83.082814), App.Rotation())
sketch7.addGeometry(Part.Circle(App.Vector(-10, 173, 0), App.Vector(0, 0, 1), 5), False)
sketch7.addConstraint(Sketcher.Constraint("Diameter", 0, Q("10 mm")))
sketch7.addConstraint(Sketcher.Constraint("DistanceX", 0, 3, -1, 1, Q("10 mm")))
sketch7.addConstraint(Sketcher.Constraint("DistanceY", -1, 1, 0, 3, Q("172.865653 mm")))
pocket4 = doc.addObject("PartDesign::Pocket", "Pocket003")
body2.addObject(pocket4)
pocket4.Profile = sketch7
pocket4.Type = "ThroughAll"
pocket4.Reversed = True

sketch8 = doc.addObject("Sketcher::SketchObject", "Sketch007")
body2.addObject(sketch8)
sketch8.AttachmentSupport = (doc.getObject("YZ_Plane001"), [""])
sketch8.MapMode = "FlatFace"
sketch8.AttachmentOffset = App.Placement(App.Vector(0, 0, -145), App.Rotation())
sketch8.addGeometry(Part.Circle(App.Vector(-10, 320, 0), App.Vector(0, 0, 1), 5), False)
sketch8.addConstraint(Sketcher.Constraint("Diameter", 0, Q("10 mm")))
sketch8.addConstraint(Sketcher.Constraint("DistanceX", 0, 3, -1, 1, Q("10 mm")))
sketch8.addConstraint(Sketcher.Constraint("DistanceY", -1, 1, 0, 3, Q("320 mm")))
doc.recompute()
hole2 = doc.addObject("PartDesign::Hole", "Hole001")
body2.addObject(hole2)
hole2.Profile = sketch8
hole2.ThreadType = "None"
hole2.Diameter = 10
hole2.DepthType = "ThroughAll"
hole2.Reversed = True
body3 = doc.addObject("PartDesign::Body", "Body002")

sketch9 = doc.addObject("Sketcher::SketchObject", "Sketch008")
body3.addObject(sketch9)
sketch9.AttachmentSupport = (doc.getObject("XZ_Plane002"), [""])
sketch9.MapMode = "FlatFace"
sketch9.addGeometry(Part.ArcOfCircle(Part.Circle(App.Vector(-73.1, 149.3, 0), App.Vector(0, 0, 1), 35), math.radians(-45), math.radians(0)), False)
sketch9.addGeometry(Part.LineSegment(App.Vector(-48.3, 124.5, 0), App.Vector(-97.7, 75.2, 0)), False)
sketch9.addGeometry(Part.ArcOfCircle(Part.Circle(App.Vector(-80, 57.5, 0), App.Vector(0, 0, 1), 25), math.radians(135), math.radians(180)), False)
sketch9.addGeometry(Part.LineSegment(App.Vector(-105, 57.5, 0), App.Vector(-105, -182.5, 0)), False)
sketch9.addGeometry(Part.ArcOfCircle(Part.Circle(App.Vector(-100, -182.5, 0), App.Vector(0, 0, 1), 5), math.radians(180), math.radians(270)), False)
sketch9.addGeometry(Part.LineSegment(App.Vector(-100, -187.5, 0), App.Vector(100, -187.5, 0)), False)
sketch9.addGeometry(Part.ArcOfCircle(Part.Circle(App.Vector(100, -182.5, 0), App.Vector(0, 0, 1), 5), math.radians(-90), math.radians(0)), False)
sketch9.addGeometry(Part.LineSegment(App.Vector(105, -182.5, 0), App.Vector(105, 57.5, 0)), False)
sketch9.addGeometry(Part.ArcOfCircle(Part.Circle(App.Vector(80, 57.5, 0), App.Vector(0, 0, 1), 25), math.radians(0), math.radians(45)), False)
sketch9.addGeometry(Part.LineSegment(App.Vector(97.7, 75.2, 0), App.Vector(48.3, 124.5, 0)), False)
sketch9.addGeometry(Part.ArcOfCircle(Part.Circle(App.Vector(73.1, 149.3, 0), App.Vector(0, 0, 1), 35), math.radians(180), math.radians(225)), False)
sketch9.addGeometry(Part.LineSegment(App.Vector(38.1, 149.3, 0), App.Vector(38.1, 192.9, 0)), False)
sketch9.addGeometry(Part.LineSegment(App.Vector(38.1, 192.9, 0), App.Vector(-38.1, 192.9, 0)), False)
sketch9.addGeometry(Part.LineSegment(App.Vector(-38.1, 192.9, 0), App.Vector(-38.1, 149.3, 0)), False)
sketch9.addConstraint(Sketcher.Constraint("Tangent", 0, 1, 1, 1))
sketch9.addConstraint(Sketcher.Constraint("Tangent", 1, 2, 2, 1))
sketch9.addConstraint(Sketcher.Constraint("Tangent", 2, 2, 3, 1))
sketch9.addConstraint(Sketcher.Constraint("Tangent", 3, 2, 4, 1))
sketch9.addConstraint(Sketcher.Constraint("Tangent", 4, 2, 5, 1))
sketch9.addConstraint(Sketcher.Constraint("Tangent", 5, 2, 6, 1))
sketch9.addConstraint(Sketcher.Constraint("Tangent", 6, 2, 7, 1))
sketch9.addConstraint(Sketcher.Constraint("Tangent", 7, 2, 8, 1))
sketch9.addConstraint(Sketcher.Constraint("Tangent", 8, 2, 9, 1))
sketch9.addConstraint(Sketcher.Constraint("Tangent", 9, 2, 10, 2))
sketch9.addConstraint(Sketcher.Constraint("Tangent", 10, 1, 11, 1))
sketch9.addConstraint(Sketcher.Constraint("Coincident", 11, 2, 12, 1))
sketch9.addConstraint(Sketcher.Constraint("Coincident", 12, 2, 13, 1))
sketch9.addConstraint(Sketcher.Constraint("Tangent", 13, 2, 0, 2))
sketch9.addConstraint(Sketcher.Constraint("Vertical", 3))
sketch9.addConstraint(Sketcher.Constraint("Horizontal", 5))
sketch9.addConstraint(Sketcher.Constraint("Vertical", 7))
sketch9.addConstraint(Sketcher.Constraint("Vertical", 11))
sketch9.addConstraint(Sketcher.Constraint("Horizontal", 12))
sketch9.addConstraint(Sketcher.Constraint("Vertical", 13))
sketch9.addConstraint(Sketcher.Constraint("Equal", 4, 6))
sketch9.addConstraint(Sketcher.Constraint("Equal", 2, 8))
sketch9.addConstraint(Sketcher.Constraint("Equal", 0, 10))
sketch9.addConstraint(Sketcher.Constraint("Symmetric", 2, 3, 8, 3, -2))
sketch9.addConstraint(Sketcher.Constraint("Symmetric", 0, 3, 10, 3, -2))
sketch9.addConstraint(Sketcher.Constraint("Perpendicular", 1, 9))
sketch9.addConstraint(Sketcher.Constraint("Radius", 0, Q("35 mm")))
sketch9.addConstraint(Sketcher.Constraint("Radius", 2, Q("25 mm")))
sketch9.addConstraint(Sketcher.Constraint("Radius", 4, Q("5 mm")))
sketch9.addConstraint(Sketcher.Constraint("DistanceX", 5, 1, 5, 2, Q("200 mm")))
sketch9.addConstraint(Sketcher.Constraint("DistanceY", 3, 2, 3, 1, Q("240 mm")))
sketch9.addConstraint(Sketcher.Constraint("DistanceY", 2, 3, 0, 3, Q("91.77 mm")))
sketch9.addConstraint(Sketcher.Constraint("DistanceY", 11, 1, 11, 2, Q("43.579611 mm")))
sketch9.addConstraint(Sketcher.Constraint("DistanceY", -1, 1, 0, 3, Q("149.286042 mm")))
pad3 = doc.addObject("PartDesign::Pad", "Pad002")
body3.addObject(pad3)
pad3.Profile = sketch9
pad3.Length = 20

sketch10 = doc.addObject("Sketcher::SketchObject", "Sketch009")
body3.addObject(sketch10)
sketch10.AttachmentSupport = (doc.getObject("YZ_Plane002"), [""])
sketch10.MapMode = "FlatFace"
sketch10.AttachmentOffset = App.Placement(App.Vector(0, 0, 38.082814), App.Rotation())
sketch10.addGeometry(Part.Circle(App.Vector(-10, 173, 0), App.Vector(0, 0, 1), 5), False)
sketch10.addConstraint(Sketcher.Constraint("Diameter", 0, Q("10 mm")))
sketch10.addConstraint(Sketcher.Constraint("DistanceX", 0, 3, -1, 1, Q("10 mm")))
sketch10.addConstraint(Sketcher.Constraint("DistanceY", -1, 1, 0, 3, Q("172.865653 mm")))
doc.recompute()
hole3 = doc.addObject("PartDesign::Hole", "Hole002")
body3.addObject(hole3)
hole3.Profile = sketch10
hole3.ThreadType = "None"
hole3.Diameter = 10
hole3.DepthType = "ThroughAll"

doc.recompute()
